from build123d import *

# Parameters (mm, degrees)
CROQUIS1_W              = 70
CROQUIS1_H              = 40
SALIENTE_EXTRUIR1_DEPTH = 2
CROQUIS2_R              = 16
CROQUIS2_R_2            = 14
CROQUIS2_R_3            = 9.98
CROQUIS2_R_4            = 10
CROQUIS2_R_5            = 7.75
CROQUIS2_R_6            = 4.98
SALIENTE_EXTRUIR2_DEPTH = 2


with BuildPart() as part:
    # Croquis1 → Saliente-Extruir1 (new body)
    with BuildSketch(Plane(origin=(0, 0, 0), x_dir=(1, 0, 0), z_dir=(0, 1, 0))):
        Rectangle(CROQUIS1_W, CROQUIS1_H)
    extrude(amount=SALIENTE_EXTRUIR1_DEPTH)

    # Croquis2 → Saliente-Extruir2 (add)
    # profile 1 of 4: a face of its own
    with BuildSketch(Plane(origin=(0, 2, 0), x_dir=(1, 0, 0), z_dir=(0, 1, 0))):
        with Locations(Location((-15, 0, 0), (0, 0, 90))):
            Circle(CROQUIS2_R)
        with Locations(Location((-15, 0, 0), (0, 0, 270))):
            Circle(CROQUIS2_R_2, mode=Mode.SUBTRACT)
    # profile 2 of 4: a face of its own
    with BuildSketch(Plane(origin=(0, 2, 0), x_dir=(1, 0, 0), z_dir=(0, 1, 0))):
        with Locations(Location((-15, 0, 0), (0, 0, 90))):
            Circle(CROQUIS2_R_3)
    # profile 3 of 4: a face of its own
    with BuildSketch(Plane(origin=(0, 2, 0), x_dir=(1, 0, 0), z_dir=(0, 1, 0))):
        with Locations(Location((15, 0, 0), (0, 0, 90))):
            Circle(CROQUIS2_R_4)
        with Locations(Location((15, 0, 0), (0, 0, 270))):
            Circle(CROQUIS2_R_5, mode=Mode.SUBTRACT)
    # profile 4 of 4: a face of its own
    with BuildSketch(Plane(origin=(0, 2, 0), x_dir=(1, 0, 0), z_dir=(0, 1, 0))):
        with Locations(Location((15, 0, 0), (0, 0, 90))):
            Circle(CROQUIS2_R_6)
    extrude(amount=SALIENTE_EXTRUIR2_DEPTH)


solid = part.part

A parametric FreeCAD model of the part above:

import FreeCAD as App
import Part
import Sketcher
from FreeCAD import Vector


def add_polygon(sketch, points):
    """Adds a closed chain of lines whose ends are joined by coincident constraints."""
    first, n = sketch.GeometryCount, len(points)
    for a, b in zip(points, points[1:] + points[:1]):
        sketch.addGeometry(Part.LineSegment(App.Vector(*a, 0), App.Vector(*b, 0)), False)
    for i in range(n):
        sketch.addConstraint(Sketcher.Constraint("Coincident", first + i, 2, first + (i + 1) % n, 1))

doc = App.newDocument("Part")
params = doc.addObject("Spreadsheet::Sheet", "Params")
for row, (alias, value) in enumerate([
    ("sketch1_width", "70 mm"),
    ("sketch1_height", "40 mm"),
    ("pad1_length", "2 mm"),
    ("sketch2_diameter", "32 mm"),
    ("sketch2_diameter2", "28 mm"),
    ("sketch2_diameter3", "20 mm"),
    ("sketch2_diameter4", "15.5 mm"),
    ("sketch2_diameter5", "19.96 mm"),
    ("pad2_length", "2 mm"),
], start=1):
    params.set(f"A{row}", alias)
    params.set(f"B{row}", "=" + value)
    params.setAlias(f"B{row}", alias)

body = doc.addObject("PartDesign::Body", "Body")

sketch1 = body.newObject("Sketcher::SketchObject", "Sketch")
sketch1.AttachmentSupport = (doc.getObject("XZ_Plane"), [""])
sketch1.MapMode = "FlatFace"
add_polygon(sketch1, [(-35, -20), (-35, 20), (35, 20), (35, -20)])
sketch1.addConstraint([
    Sketcher.Constraint("Vertical", 0),
    Sketcher.Constraint("Horizontal", 1),
    Sketcher.Constraint("Vertical", 2),
    Sketcher.Constraint("Horizontal", 3),
    Sketcher.Constraint("Symmetric", 0, 2, 2, 2, -1, 1),
    Sketcher.Constraint("DistanceX", 1, 1, 1, 2, 70.0),
    Sketcher.Constraint("DistanceY", 0, 1, 0, 2, 40.0),
])
sketch1.setExpression("Constraints[9]", "Params.sketch1_width")
sketch1.setExpression("Constraints[10]", "Params.sketch1_height")
pad1 = body.newObject("PartDesign::Pad", "Pad")
pad1.Profile = sketch1
pad1.setExpression("Length", "Params.pad1_length")
pad1.Reversed = True

sketch2 = body.newObject("Sketcher::SketchObject", "Sketch001")
sketch2.AttachmentSupport = (doc.getObject("XZ_Plane"), [""])
sketch2.MapMode = "FlatFace"
sketch2.AttachmentOffset = App.Placement(Vector(0, 0, -2), App.Rotation())
sketch2.addGeometry([
    Part.Circle(Vector(-15, 0, 0), Vector(0, 0, 1), 16),
    Part.Circle(Vector(-15, 0, 0), Vector(0, 0, 1), 14),
    Part.Circle(Vector(-15, 0, 0), Vector(0, 0, 1), 10),
    Part.Circle(Vector(15, 0, 0), Vector(0, 0, 1), 10),
    Part.Circle(Vector(15, 0, 0), Vector(0, 0, 1), 7.8),
    Part.Circle(Vector(15, 0, 0), Vector(0, 0, 1), 5),
], False)
sketch2.addConstraint([
    Sketcher.Constraint("Coincident", 1, 3, 0, 3),
    Sketcher.Constraint("Coincident", 2, 3, 0, 3),
    Sketcher.Constraint("Coincident", 4, 3, 3, 3),
    Sketcher.Constraint("Coincident", 5, 3, 3, 3),
    Sketcher.Constraint("Symmetric", 0, 3, 3, 3, -1, 1),
    Sketcher.Constraint("PointOnObject", 0, 3, -1),
    Sketcher.Constraint("Diameter", 0, 32.0),
    Sketcher.Constraint("Diameter", 1, 28.0),
    Sketcher.Constraint("Diameter", 3, 20.0),
    Sketcher.Constraint("Diameter", 4, 15.5),
    Sketcher.Constraint("Diameter", 2, 19.96),
    Sketcher.Constraint("Diameter", 5, 9.96),
    Sketcher.Constraint("DistanceX", 0, 3, -1, 1, 15.0),
])
sketch2.setExpression("Constraints[6]", "Params.sketch2_diameter")
sketch2.setExpression("Constraints[7]", "Params.sketch2_diameter2")
sketch2.setExpression("Constraints[8]", "Params.sketch2_diameter3")
sketch2.setExpression("Constraints[9]", "Params.sketch2_diameter4")
sketch2.setExpression("Constraints[10]", "Params.sketch2_diameter5")
pad2 = body.newObject("PartDesign::Pad", "Pad001")
pad2.Profile = sketch2
pad2.setExpression("Length", "Params.pad2_length")
pad2.Reversed = True

doc.recompute()
